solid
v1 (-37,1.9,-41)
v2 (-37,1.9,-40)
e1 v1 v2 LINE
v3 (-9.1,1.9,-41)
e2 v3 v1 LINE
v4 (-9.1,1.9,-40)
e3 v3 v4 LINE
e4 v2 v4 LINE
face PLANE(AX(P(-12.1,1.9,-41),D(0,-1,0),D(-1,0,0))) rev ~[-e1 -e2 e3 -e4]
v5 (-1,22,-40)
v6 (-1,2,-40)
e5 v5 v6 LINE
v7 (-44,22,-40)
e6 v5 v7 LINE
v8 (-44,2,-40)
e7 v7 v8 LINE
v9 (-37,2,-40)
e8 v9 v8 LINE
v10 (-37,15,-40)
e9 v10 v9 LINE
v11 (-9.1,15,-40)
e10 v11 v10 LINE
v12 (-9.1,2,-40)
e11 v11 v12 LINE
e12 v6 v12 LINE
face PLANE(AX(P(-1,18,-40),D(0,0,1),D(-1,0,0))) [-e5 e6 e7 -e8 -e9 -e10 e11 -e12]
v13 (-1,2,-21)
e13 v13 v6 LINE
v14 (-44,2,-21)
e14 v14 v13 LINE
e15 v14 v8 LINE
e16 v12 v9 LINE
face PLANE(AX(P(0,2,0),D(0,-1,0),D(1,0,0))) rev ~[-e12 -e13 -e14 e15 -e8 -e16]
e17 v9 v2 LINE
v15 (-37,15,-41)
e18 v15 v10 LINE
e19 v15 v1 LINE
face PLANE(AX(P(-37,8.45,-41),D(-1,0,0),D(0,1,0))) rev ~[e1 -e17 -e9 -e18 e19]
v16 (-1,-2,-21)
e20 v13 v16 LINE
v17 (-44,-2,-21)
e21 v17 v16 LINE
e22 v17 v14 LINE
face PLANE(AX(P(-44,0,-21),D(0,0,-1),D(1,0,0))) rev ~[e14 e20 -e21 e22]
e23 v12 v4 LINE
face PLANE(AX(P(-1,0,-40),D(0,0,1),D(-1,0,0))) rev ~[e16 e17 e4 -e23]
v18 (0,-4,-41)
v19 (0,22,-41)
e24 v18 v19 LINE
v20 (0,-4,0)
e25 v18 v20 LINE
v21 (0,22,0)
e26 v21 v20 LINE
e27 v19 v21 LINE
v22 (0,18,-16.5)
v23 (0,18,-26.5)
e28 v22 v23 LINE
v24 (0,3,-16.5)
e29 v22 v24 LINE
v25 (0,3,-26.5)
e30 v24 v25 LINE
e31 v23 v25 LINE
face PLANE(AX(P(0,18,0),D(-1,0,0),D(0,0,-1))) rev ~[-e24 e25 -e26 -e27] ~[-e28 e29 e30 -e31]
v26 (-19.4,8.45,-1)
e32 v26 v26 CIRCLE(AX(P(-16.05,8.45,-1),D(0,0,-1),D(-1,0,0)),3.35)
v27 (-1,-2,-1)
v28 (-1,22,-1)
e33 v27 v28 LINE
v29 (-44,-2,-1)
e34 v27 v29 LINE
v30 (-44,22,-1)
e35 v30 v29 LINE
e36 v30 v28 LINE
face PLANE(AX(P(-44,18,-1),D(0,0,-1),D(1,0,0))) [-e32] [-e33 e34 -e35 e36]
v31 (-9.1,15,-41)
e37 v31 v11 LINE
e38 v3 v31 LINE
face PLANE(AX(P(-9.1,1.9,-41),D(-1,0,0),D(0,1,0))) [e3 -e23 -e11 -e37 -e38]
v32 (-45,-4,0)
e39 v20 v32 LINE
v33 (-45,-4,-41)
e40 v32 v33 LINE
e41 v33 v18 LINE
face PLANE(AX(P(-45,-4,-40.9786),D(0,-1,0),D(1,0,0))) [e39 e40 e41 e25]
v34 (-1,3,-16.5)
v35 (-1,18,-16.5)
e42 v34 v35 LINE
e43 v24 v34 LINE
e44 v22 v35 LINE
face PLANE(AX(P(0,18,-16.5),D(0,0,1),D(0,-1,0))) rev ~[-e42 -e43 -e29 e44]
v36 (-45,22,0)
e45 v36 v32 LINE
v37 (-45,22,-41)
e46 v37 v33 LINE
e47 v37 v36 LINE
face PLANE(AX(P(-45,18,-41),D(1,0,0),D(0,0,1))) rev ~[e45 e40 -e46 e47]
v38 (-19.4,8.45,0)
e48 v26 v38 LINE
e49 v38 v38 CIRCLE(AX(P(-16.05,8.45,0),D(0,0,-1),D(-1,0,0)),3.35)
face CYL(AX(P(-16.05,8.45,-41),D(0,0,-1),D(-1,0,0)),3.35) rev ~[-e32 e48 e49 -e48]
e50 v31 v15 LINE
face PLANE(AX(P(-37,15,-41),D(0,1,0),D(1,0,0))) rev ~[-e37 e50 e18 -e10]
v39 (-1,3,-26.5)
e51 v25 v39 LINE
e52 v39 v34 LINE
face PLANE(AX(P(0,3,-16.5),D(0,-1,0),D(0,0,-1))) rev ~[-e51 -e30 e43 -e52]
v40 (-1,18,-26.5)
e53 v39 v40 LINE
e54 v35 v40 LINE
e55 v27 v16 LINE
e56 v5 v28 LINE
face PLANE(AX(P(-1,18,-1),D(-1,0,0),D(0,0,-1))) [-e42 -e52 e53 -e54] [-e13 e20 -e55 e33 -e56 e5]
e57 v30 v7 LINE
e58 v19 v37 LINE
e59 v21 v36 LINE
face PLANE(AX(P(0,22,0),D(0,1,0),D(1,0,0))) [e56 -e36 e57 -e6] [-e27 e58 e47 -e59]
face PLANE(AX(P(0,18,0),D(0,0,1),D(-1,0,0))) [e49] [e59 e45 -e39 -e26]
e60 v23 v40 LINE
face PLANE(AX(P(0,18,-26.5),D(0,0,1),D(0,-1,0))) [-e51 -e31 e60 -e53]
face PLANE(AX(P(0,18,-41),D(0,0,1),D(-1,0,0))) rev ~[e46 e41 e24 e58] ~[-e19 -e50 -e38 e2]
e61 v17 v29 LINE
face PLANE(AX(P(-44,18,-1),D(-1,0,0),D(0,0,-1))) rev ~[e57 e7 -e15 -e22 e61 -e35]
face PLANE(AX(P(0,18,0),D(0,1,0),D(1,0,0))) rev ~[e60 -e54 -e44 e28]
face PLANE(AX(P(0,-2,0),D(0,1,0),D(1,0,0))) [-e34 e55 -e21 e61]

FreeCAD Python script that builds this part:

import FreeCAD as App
import Part
import Sketcher
from FreeCAD import Vector


def add_polygon(sketch, points):
    """Adds a closed chain of lines whose ends are joined by coincident constraints."""
    first, n = sketch.GeometryCount, len(points)
    for a, b in zip(points, points[1:] + points[:1]):
        sketch.addGeometry(Part.LineSegment(App.Vector(*a, 0), App.Vector(*b, 0)), False)
    for i in range(n):
        sketch.addConstraint(Sketcher.Constraint("Coincident", first + i, 2, first + (i + 1) % n, 1))

doc = App.newDocument("Part")
params = doc.addObject("Spreadsheet::Sheet", "Params")
for row, (alias, value) in enumerate([
    ("sketch1_width", "45 mm"),
    ("sketch1_height", "41 mm"),
    ("pad1_length", "18 mm"),
    ("sketch2_width", "27.9 mm"),
    ("sketch2_height", "13.1 mm"),
    ("pocket1_length", "5.25 mm"),
    ("sketch3_diameter", "6.7 mm"),
    ("pocket2_length", "48.25 mm"),
    ("sketch4_width", "15 mm"),
    ("sketch4_height", "10 mm"),
    ("pocket3_length", "24.25 mm"),
    ("sketch5_height", "19 mm"),
    ("sketch5_width", "43 mm"),
    ("pad2_length", "2 mm"),
    ("sketch6_width", "45 mm"),
    ("pad3_length", "4 mm"),
    ("sketch7_width", "43 mm"),
    ("sketch7_height", "20 mm"),
    ("pocket4_length", "2 mm"),
    ("sketch8_width", "45 mm"),
    ("sketch8_height", "4 mm"),
    ("pad4_length", "0.0214 mm"),
    ("sketch9_width", "45 mm"),
    ("sketch9_width2", "43 mm"),
    ("sketch9_height", "41 mm"),
    ("sketch9_height2", "39 mm"),
    ("pad5_length", "4 mm"),
], start=1):
    params.set(f"A{row}", alias)
    params.set(f"B{row}", "=" + value)
    params.setAlias(f"B{row}", alias)

body = doc.addObject("PartDesign::Body", "Body")

# Sketch on XZ plane
sketch1 = body.newObject("Sketcher::SketchObject", "Sketch")
sketch1.AttachmentSupport = (doc.getObject("XZ_Plane"), [""])
sketch1.MapMode = "FlatFace"
add_polygon(sketch1, [(0, 0), (0, -41), (-45, -41), (-45, 0)])  # lines 0-3
add_polygon(sketch1, [(-1, -1), (-44, -1), (-44, -40), (-1, -40)])  # lines 4-7
sketch1.addConstraint([
    Sketcher.Constraint("Vertical", 0),
    Sketcher.Constraint("Horizontal", 1),
    Sketcher.Constraint("Vertical", 2),
    Sketcher.Constraint("Horizontal", 3),
    Sketcher.Constraint("Horizontal", 4),
    Sketcher.Constraint("Vertical", 5),
    Sketcher.Constraint("Horizontal", 6),
    Sketcher.Constraint("Vertical", 7),
    Sketcher.Constraint("Coincident", 3, 2, -1, 1),
    Sketcher.Constraint("DistanceX", 1, 2, 1, 1, 45.0),
    Sketcher.Constraint("DistanceY", 0, 2, 0, 1, 41.0),
    Sketcher.Constraint("DistanceY", 4, 2, -1, 1, 1.0),
    Sketcher.Constraint("DistanceX", 6, 2, -1, 1, 1.0),
    Sketcher.Constraint("DistanceX", 2, 2, 4, 2, 1.0),
    Sketcher.Constraint("DistanceY", 1, 2, 5, 2, 1.0),
])
sketch1.setExpression("Constraints[17]", "Params.sketch1_width")
sketch1.setExpression("Constraints[18]", "Params.sketch1_height")
pad1 = body.newObject("PartDesign::Pad", "Pad")
pad1.Profile = sketch1
pad1.setExpression("Length", "Params.pad1_length")
pad1.Reversed = True

# Sketch on XY plane
sketch2 = body.newObject("Sketcher::SketchObject", "Sketch001")
sketch2.AttachmentSupport = (doc.getObject("XY_Plane"), [""])
sketch2.MapMode = "FlatFace"
sketch2.AttachmentOffset = App.Placement(Vector(0, 0, -41), App.Rotation())
add_polygon(sketch2, [(-37, 15), (-9, 15), (-9, 2), (-37, 2)])  # lines 0-3
sketch2.addConstraint([
    Sketcher.Constraint("Horizontal", 0),
    Sketcher.Constraint("Vertical", 1),
    Sketcher.Constraint("Horizontal", 2),
    Sketcher.Constraint("Vertical", 3),
    Sketcher.Constraint("DistanceX", 0, 1, 0, 2, 27.9),
    Sketcher.Constraint("DistanceY", 1, 2, 1, 1, 13.1),
    Sketcher.Constraint("DistanceY", -1, 1, 0, 2, 15.0),
    Sketcher.Constraint("DistanceX", 2, 2, -1, 1, 37.0),
])
sketch2.setExpression("Constraints[8]", "Params.sketch2_width")
sketch2.setExpression("Constraints[9]", "Params.sketch2_height")
pocket1 = body.newObject("PartDesign::Pocket", "Pocket")
pocket1.Profile = sketch2
pocket1.setExpression("Length", "Params.pocket1_length")
pocket1.Reversed = True

# Sketch on XY plane
sketch3 = body.newObject("Sketcher::SketchObject", "Sketch002")
sketch3.AttachmentSupport = (doc.getObject("XY_Plane"), [""])
sketch3.MapMode = "FlatFace"
sketch3.AttachmentOffset = App.Placement(Vector(0, 0, -41), App.Rotation())
sketch3.addGeometry(Part.Circle(Vector(-16.1, 8.4, 0), Vector(0, 0, 1), 3.4), False)
sketch3.addConstraint([
    Sketcher.Constraint("Diameter", 0, 6.7),
    Sketcher.Constraint("DistanceX", 0, 3, -1, 1, 16.05),
    Sketcher.Constraint("DistanceY", -1, 1, 0, 3, 8.45),
])
sketch3.setExpression("Constraints[0]", "Params.sketch3_diameter")
pocket2 = body.newObject("PartDesign::Pocket", "Pocket001")
pocket2.Profile = sketch3
pocket2.setExpression("Length", "Params.pocket2_length")
pocket2.Reversed = True

# Sketch on YZ plane
sketch4 = body.newObject("Sketcher::SketchObject", "Sketch003")
sketch4.AttachmentSupport = (doc.getObject("YZ_Plane"), [""])
sketch4.MapMode = "FlatFace"
add_polygon(sketch4, [(18, -16), (3, -16), (3, -26), (18, -26)])  # lines 0-3
sketch4.addConstraint([
    Sketcher.Constraint("Horizontal", 0),
    Sketcher.Constraint("Vertical", 1),
    Sketcher.Constraint("Horizontal", 2),
    Sketcher.Constraint("Vertical", 3),
    Sketcher.Constraint("DistanceX", 0, 2, 0, 1, 15.0),
    Sketcher.Constraint("DistanceY", 1, 2, 1, 1, 10.0),
    Sketcher.Constraint("DistanceX", -1, 1, 0, 2, 3.0),
    Sketcher.Constraint("DistanceY", 0, 2, -1, 1, 16.5),
])
sketch4.setExpression("Constraints[8]", "Params.sketch4_width")
sketch4.setExpression("Constraints[9]", "Params.sketch4_height")
pocket3 = body.newObject("PartDesign::Pocket", "Pocket002")
pocket3.Profile = sketch4
pocket3.setExpression("Length", "Params.pocket3_length")

# Sketch on XZ plane
sketch5 = body.newObject("Sketcher::SketchObject", "Sketch004")
sketch5.AttachmentSupport = (doc.getObject("XZ_Plane"), [""])
sketch5.MapMode = "FlatFace"
add_polygon(sketch5, [(-44, -40), (-1, -40), (-1, -21), (-44, -21)])  # lines 0-3
sketch5.addConstraint([
    Sketcher.Constraint("Horizontal", 0),
    Sketcher.Constraint("Vertical", 1),
    Sketcher.Constraint("Horizontal", 2),
    Sketcher.Constraint("Vertical", 3),
    Sketcher.Constraint("DistanceY", 1, 1, 1, 2, 19.0),
    Sketcher.Constraint("DistanceX", 0, 1, 0, 2, 43.0),
    Sketcher.Constraint("DistanceX", 0, 2, -1, 1, 1.0),
    Sketcher.Constraint("DistanceY", 0, 2, -1, 1, 40.0),
])
sketch5.setExpression("Constraints[8]", "Params.sketch5_height")
sketch5.setExpression("Constraints[9]", "Params.sketch5_width")
pad2 = body.newObject("PartDesign::Pad", "Pad001")
pad2.Profile = sketch5
pad2.setExpression("Length", "Params.pad2_length")
pad2.Reversed = True

# Sketch on XZ plane
sketch6 = body.newObject("Sketcher::SketchObject", "Sketch005")
sketch6.AttachmentSupport = (doc.getObject("XZ_Plane"), [""])
sketch6.MapMode = "FlatFace"
add_polygon(sketch6, [(0, -41), (0, 0), (-45, 0), (-45, -41)])  # lines 0-3
sketch6.addConstraint([
    Sketcher.Constraint("Vertical", 0),
    Sketcher.Constraint("Horizontal", 1),
    Sketcher.Constraint("Vertical", 2),
    Sketcher.Constraint("Horizontal", 3),
    Sketcher.Constraint("Coincident", 0, 2, -1, 1),
    Sketcher.Constraint("DistanceX", 1, 2, 1, 1, 45.0),
    Sketcher.Constraint("DistanceY", 0, 1, 0, 2, 40.9786),
])
sketch6.setExpression("Constraints[9]", "Params.sketch6_width")
pad3 = body.newObject("PartDesign::Pad", "Pad002")
pad3.Profile = sketch6
pad3.setExpression("Length", "Params.pad3_length")

# Sketch on XZ plane
sketch7 = body.newObject("Sketcher::SketchObject", "Sketch006")
sketch7.AttachmentSupport = (doc.getObject("XZ_Plane"), [""])
sketch7.MapMode = "FlatFace"
add_polygon(sketch7, [(-44, -1), (-1, -1), (-1, -21), (-44, -21)])  # lines 0-3
sketch7.addConstraint([
    Sketcher.Constraint("Horizontal", 0),
    Sketcher.Constraint("Vertical", 1),
    Sketcher.Constraint("Horizontal", 2),
    Sketcher.Constraint("Vertical", 3),
    Sketcher.Constraint("DistanceX", 0, 1, 0, 2, 43.0),
    Sketcher.Constraint("DistanceY", 1, 2, 1, 1, 20.0),
    Sketcher.Constraint("DistanceX", 0, 2, -1, 1, 1.0),
    Sketcher.Constraint("DistanceY", 0, 2, -1, 1, 1.0),
])
sketch7.setExpression("Constraints[8]", "Params.sketch7_width")
sketch7.setExpression("Constraints[9]", "Params.sketch7_height")
pocket4 = body.newObject("PartDesign::Pocket", "Pocket003")
pocket4.Profile = sketch7
pocket4.setExpression("Length", "Params.pocket4_length")
pocket4.Reversed = True

# Sketch on XY plane
sketch8 = body.newObject("Sketcher::SketchObject", "Sketch007")
sketch8.AttachmentSupport = (doc.getObject("XY_Plane"), [""])
sketch8.MapMode = "FlatFace"
sketch8.AttachmentOffset = App.Placement(Vector(0, 0, -40.9786), App.Rotation())
add_polygon(sketch8, [(0, -4), (-45, -4), (-45, 0), (0, 0)])  # lines 0-3
sketch8.addConstraint([
    Sketcher.Constraint("Horizontal", 0),
    Sketcher.Constraint("Vertical", 1),
    Sketcher.Constraint("Horizontal", 2),
    Sketcher.Constraint("Vertical", 3),
    Sketcher.Constraint("Coincident", 2, 2, -1, 1),
    Sketcher.Constraint("DistanceX", 0, 2, 0, 1, 45.0),
    Sketcher.Constraint("DistanceY", 1, 1, 1, 2, 4.0),
])
sketch8.setExpression("Constraints[9]", "Params.sketch8_width")
sketch8.setExpression("Constraints[10]", "Params.sketch8_height")
pad4 = body.newObject("PartDesign::Pad", "Pad003")
pad4.Profile = sketch8
pad4.setExpression("Length", "Params.pad4_length")
pad4.Reversed = True

# Sketch on XZ plane
sketch9 = body.newObject("Sketcher::SketchObject", "Sketch008")
sketch9.AttachmentSupport = (doc.getObject("XZ_Plane"), [""])
sketch9.MapMode = "FlatFace"
sketch9.AttachmentOffset = App.Placement(Vector(0, 0, -18), App.Rotation())
add_polygon(sketch9, [(0, 0), (0, -41), (-45, -41), (-45, 0)])  # lines 0-3
add_polygon(sketch9, [(-44, -40), (-1, -40), (-1, -1), (-44, -1)])  # lines 4-7
sketch9.addConstraint([
    Sketcher.Constraint("Vertical", 0),
    Sketcher.Constraint("Horizontal", 1),
    Sketcher.Constraint("Vertical", 2),
    Sketcher.Constraint("Horizontal", 3),
    Sketcher.Constraint("Horizontal", 4),
    Sketcher.Constraint("Vertical", 5),
    Sketcher.Constraint("Horizontal", 6),
    Sketcher.Constraint("Vertical", 7),
    Sketcher.Constraint("Coincident", 3, 2, -1, 1),
    Sketcher.Constraint("DistanceX", 1, 2, 1, 1, 45.0),
    Sketcher.Constraint("DistanceX", 4, 1, 4, 2, 43.0),
    Sketcher.Constraint("DistanceY", 0, 2, 0, 1, 41.0),
    Sketcher.Constraint("DistanceY", 5, 1, 5, 2, 39.0),
    Sketcher.Constraint("DistanceX", 4, 2, -1, 1, 1.0),
    Sketcher.Constraint("DistanceY", 4, 2, -1, 1, 40.0),
])
sketch9.setExpression("Constraints[17]", "Params.sketch9_width")
sketch9.setExpression("Constraints[18]", "Params.sketch9_width2")
sketch9.setExpression("Constraints[19]", "Params.sketch9_height")
sketch9.setExpression("Constraints[20]", "Params.sketch9_height2")
pad5 = body.newObject("PartDesign::Pad", "Pad004")
pad5.Profile = sketch9
pad5.setExpression("Length", "Params.pad5_length")
pad5.Reversed = True

doc.recompute()
